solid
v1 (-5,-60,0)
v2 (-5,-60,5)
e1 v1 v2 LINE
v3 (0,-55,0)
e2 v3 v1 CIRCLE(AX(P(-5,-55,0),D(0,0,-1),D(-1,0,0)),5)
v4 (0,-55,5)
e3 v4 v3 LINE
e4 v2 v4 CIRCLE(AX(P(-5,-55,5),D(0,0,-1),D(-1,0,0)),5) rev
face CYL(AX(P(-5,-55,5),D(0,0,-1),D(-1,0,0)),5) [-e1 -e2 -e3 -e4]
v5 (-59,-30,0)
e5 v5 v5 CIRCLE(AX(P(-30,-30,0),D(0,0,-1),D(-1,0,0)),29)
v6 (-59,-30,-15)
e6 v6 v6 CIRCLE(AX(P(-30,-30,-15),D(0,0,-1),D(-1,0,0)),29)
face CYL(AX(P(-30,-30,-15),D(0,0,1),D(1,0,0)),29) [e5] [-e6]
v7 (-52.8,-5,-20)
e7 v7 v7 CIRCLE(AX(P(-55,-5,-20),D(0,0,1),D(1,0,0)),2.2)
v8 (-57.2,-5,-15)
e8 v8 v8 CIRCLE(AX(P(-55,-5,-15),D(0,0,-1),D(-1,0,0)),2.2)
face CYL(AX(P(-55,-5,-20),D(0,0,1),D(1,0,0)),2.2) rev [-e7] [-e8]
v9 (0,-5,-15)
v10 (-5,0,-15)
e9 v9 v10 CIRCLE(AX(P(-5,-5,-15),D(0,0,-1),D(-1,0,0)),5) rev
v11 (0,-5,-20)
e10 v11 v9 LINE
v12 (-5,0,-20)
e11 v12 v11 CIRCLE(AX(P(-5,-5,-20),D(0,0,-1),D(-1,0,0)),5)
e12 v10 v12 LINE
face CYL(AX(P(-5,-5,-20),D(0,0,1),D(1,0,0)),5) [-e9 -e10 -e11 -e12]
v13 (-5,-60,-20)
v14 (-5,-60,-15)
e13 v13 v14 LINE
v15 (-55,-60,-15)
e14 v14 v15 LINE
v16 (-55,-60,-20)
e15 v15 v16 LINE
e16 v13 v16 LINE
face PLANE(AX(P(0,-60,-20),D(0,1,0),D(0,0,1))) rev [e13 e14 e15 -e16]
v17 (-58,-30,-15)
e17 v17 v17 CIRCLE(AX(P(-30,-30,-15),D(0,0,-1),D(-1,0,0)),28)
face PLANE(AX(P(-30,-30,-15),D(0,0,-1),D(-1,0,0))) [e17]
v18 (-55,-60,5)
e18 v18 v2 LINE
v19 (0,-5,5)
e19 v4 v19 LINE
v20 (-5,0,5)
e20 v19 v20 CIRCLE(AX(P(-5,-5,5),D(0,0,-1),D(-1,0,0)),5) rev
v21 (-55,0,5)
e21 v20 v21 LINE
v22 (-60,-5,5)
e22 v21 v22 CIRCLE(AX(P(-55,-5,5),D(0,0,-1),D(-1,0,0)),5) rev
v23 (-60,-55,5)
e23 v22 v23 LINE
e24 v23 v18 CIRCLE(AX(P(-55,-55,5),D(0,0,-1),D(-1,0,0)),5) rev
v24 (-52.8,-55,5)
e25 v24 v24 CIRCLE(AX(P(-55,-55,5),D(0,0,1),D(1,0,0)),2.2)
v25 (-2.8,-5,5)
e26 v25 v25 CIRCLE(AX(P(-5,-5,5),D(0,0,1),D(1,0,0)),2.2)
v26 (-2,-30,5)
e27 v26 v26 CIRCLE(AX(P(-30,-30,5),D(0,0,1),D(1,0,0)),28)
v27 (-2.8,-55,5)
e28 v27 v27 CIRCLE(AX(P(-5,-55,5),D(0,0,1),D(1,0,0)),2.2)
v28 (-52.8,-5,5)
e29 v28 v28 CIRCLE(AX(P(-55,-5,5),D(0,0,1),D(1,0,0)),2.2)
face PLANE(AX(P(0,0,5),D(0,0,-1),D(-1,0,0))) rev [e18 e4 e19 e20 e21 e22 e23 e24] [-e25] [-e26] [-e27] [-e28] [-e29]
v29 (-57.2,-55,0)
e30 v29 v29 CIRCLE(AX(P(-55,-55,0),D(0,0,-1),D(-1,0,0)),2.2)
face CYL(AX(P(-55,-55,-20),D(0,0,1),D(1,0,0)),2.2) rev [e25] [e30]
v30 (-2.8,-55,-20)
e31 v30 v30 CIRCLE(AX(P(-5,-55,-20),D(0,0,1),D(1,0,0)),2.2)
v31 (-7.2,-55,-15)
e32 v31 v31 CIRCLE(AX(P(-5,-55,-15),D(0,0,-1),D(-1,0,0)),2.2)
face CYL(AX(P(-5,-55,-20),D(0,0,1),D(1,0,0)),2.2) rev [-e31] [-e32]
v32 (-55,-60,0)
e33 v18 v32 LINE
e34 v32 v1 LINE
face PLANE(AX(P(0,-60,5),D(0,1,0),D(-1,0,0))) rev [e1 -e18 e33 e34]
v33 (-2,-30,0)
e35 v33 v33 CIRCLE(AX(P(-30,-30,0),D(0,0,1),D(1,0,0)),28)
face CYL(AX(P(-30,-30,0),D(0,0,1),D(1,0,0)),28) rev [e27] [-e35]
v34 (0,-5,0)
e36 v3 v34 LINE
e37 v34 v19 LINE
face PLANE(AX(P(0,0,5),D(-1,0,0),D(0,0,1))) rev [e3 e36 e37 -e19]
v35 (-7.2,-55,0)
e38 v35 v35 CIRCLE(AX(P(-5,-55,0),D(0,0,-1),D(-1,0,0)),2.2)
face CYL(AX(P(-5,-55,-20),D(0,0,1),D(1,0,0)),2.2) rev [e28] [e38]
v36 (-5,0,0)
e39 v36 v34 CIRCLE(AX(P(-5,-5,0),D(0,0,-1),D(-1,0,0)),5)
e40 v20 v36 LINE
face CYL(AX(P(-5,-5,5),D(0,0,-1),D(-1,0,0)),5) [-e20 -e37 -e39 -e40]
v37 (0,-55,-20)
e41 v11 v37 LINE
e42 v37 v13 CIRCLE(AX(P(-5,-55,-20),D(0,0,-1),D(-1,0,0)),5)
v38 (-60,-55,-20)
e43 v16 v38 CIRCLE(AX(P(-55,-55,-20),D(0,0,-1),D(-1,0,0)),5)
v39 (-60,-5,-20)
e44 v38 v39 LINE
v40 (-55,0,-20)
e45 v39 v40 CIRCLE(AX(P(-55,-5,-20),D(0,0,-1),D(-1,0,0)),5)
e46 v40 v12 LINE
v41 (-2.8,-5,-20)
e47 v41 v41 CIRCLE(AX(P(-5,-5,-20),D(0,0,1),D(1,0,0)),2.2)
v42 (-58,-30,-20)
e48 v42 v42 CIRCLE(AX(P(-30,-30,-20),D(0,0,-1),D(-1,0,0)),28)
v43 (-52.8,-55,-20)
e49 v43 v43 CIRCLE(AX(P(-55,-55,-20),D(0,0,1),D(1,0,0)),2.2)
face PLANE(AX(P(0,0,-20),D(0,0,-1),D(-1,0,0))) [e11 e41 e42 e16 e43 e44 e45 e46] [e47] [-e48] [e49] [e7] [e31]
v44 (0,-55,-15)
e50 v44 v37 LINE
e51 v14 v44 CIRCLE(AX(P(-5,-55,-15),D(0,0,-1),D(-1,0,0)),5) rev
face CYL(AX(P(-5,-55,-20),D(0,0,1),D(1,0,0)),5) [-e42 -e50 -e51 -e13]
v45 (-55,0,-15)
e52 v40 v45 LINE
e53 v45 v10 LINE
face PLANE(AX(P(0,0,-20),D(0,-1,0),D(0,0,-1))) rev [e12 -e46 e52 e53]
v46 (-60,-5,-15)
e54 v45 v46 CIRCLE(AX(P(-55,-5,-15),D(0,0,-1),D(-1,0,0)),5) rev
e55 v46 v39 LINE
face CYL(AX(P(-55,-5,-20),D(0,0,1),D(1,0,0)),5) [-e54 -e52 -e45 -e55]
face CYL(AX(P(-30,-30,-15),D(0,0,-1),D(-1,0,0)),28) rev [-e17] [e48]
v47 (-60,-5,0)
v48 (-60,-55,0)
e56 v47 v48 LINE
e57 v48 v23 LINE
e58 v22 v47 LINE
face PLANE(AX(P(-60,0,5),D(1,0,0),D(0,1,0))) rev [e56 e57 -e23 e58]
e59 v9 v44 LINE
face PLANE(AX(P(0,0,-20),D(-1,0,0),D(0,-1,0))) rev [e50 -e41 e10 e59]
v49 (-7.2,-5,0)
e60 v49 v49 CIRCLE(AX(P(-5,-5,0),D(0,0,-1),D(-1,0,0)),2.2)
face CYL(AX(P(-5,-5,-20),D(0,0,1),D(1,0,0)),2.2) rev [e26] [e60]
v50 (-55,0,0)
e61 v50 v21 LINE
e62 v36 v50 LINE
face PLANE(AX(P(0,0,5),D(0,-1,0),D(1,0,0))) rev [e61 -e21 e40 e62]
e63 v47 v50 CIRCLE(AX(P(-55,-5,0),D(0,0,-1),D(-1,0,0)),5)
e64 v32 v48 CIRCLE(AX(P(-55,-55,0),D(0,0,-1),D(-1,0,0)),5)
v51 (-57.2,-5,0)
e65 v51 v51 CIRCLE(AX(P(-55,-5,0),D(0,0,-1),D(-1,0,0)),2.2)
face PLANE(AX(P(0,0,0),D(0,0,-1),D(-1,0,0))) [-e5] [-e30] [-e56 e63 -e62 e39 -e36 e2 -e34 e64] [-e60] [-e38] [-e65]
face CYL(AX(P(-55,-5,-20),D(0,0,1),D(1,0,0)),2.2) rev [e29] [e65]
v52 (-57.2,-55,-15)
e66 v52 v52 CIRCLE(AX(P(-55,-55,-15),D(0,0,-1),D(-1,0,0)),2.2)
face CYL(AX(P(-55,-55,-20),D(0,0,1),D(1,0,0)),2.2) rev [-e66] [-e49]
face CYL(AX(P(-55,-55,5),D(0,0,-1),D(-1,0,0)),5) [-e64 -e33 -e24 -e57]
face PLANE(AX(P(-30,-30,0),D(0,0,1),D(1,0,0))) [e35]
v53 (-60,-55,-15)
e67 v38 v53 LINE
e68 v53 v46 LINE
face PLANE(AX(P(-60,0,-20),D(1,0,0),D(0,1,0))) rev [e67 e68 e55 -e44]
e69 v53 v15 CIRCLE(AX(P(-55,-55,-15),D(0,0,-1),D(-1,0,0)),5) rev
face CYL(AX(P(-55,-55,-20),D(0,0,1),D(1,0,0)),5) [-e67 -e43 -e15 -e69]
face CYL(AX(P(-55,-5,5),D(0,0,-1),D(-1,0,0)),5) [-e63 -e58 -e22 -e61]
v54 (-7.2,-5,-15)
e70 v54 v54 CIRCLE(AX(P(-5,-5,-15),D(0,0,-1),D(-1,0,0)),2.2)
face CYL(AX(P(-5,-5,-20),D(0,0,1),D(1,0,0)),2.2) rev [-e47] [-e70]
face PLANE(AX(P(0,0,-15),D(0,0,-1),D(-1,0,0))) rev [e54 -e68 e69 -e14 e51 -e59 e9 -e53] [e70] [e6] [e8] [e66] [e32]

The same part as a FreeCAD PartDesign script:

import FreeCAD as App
import Part
import Sketcher

V = App.Vector


def edges_at(feature, points):
    """Names of the edges that pass closest to the given points."""
    edges = feature.Shape.Edges
    near = lambda p: min(range(len(edges)), key=lambda i: edges[i].distToShape(Part.Vertex(*p))[0])
    return sorted({f"Edge{near(p) + 1}" for p in points})


def add_polygon(sketch, points):
    """Adds a closed chain of lines whose ends are joined by coincident constraints."""
    first, n = sketch.GeometryCount, len(points)
    for a, b in zip(points, points[1:] + points[:1]):
        sketch.addGeometry(Part.LineSegment(App.Vector(*a, 0), App.Vector(*b, 0)), False)
    for i in range(n):
        sketch.addConstraint(Sketcher.Constraint("Coincident", first + i, 2, first + (i + 1) % n, 1))

doc = App.newDocument("Part")
body = doc.addObject("PartDesign::Body", "Body")

sketch1 = body.newObject("Sketcher::SketchObject", "Sketch")
sketch1.AttachmentSupport = (doc.getObject("XY_Plane"), [""])
sketch1.MapMode = "FlatFace"
add_polygon(sketch1, [(-60, 0), (-60, -60), (0, -60), (0, 0)])
sketch1.addConstraint([
    Sketcher.Constraint("Vertical", 0),
    Sketcher.Constraint("Horizontal", 1),
    Sketcher.Constraint("Vertical", 2),
    Sketcher.Constraint("Horizontal", 3),
    Sketcher.Constraint("Coincident", 2, 2, -1, 1),
    Sketcher.Constraint("Equal", 3, 0),
    Sketcher.Constraint("DistanceX", 1, 1, 1, 2, 60.0),
])
pad1 = body.newObject("PartDesign::Pad", "Pad")
pad1.Profile = sketch1
pad1.Length = 5

sketch2 = body.newObject("Sketcher::SketchObject", "Sketch001")
sketch2.AttachmentSupport = (doc.getObject("XY_Plane"), [""])
sketch2.MapMode = "FlatFace"
sketch2.addGeometry(Part.Circle(V(-30, -30, 0), V(0, 0, 1), 29), False)
sketch2.addConstraint([
    Sketcher.Constraint("Diameter", 0, 58.0),
    Sketcher.Constraint("DistanceX", 0, 3, -1, 1, 30.0),
    Sketcher.Constraint("DistanceY", 0, 3, -1, 1, 30.0),
])
pad2 = body.newObject("PartDesign::Pad", "Pad001")
pad2.Profile = sketch2
pad2.Length = 15
pad2.Reversed = True

sketch3 = body.newObject("Sketcher::SketchObject", "Sketch002")
sketch3.AttachmentSupport = (doc.getObject("XY_Plane"), [""])
sketch3.MapMode = "FlatFace"
sketch3.AttachmentOffset = App.Placement(V(0, 0, -15), App.Rotation())
add_polygon(sketch3, [(0, 0), (0, -60), (-60, -60), (-60, 0)])
sketch3.addConstraint([
    Sketcher.Constraint("Vertical", 0),
    Sketcher.Constraint("Horizontal", 1),
    Sketcher.Constraint("Vertical", 2),
    Sketcher.Constraint("Horizontal", 3),
    Sketcher.Constraint("Coincident", 3, 2, -1, 1),
    Sketcher.Constraint("Equal", 3, 0),
    Sketcher.Constraint("DistanceX", 1, 2, 1, 1, 60.0),
])
pad3 = body.newObject("PartDesign::Pad", "Pad002")
pad3.Profile = sketch3
pad3.Length = 5
pad3.Reversed = True
doc.recompute()

fillet = body.newObject("PartDesign::Fillet", "Fillet")
fillet.Base = (pad3, edges_at(pad3, [
    (0, 0, -17.5),
    (0, -60, -17.5),
    (-60, -60, -17.5),
    (-60, 0, -17.5),
    (0, -60, 2.5),
    (-60, -60, 2.5),
    (-60, 0, 2.5),
    (0, 0, 2.5),
]))
fillet.Radius = 5

sketch4 = body.newObject("Sketcher::SketchObject", "Sketch003")
sketch4.AttachmentSupport = (doc.getObject("XY_Plane"), [""])
sketch4.MapMode = "FlatFace"
sketch4.AttachmentOffset = App.Placement(V(0, 0, 5), App.Rotation())
sketch4.addGeometry([
    Part.Circle(V(-55, -5, 0), V(0, 0, 1), 2.2),
    Part.Circle(V(-5, -5, 0), V(0, 0, 1), 2.2),
    Part.Circle(V(-5, -55, 0), V(0, 0, 1), 2.2),
    Part.Circle(V(-55, -55, 0), V(0, 0, 1), 2.2),
], False)
sketch4.addConstraint([
    Sketcher.Constraint("Equal", 0, 1),
    Sketcher.Constraint("Equal", 1, 2),
    Sketcher.Constraint("Equal", 2, 3),
    Sketcher.Constraint("Horizontal", 0, 3, 1, 3),
    Sketcher.Constraint("Horizontal", 2, 3, 3, 3),
    Sketcher.Constraint("Vertical", 1, 3, 2, 3),
    Sketcher.Constraint("Vertical", 0, 3, 3, 3),
    Sketcher.Constraint("Diameter", 0, 4.4),
    Sketcher.Constraint("DistanceX", 0, 3, -1, 1, 55.0),
    Sketcher.Constraint("DistanceY", 0, 3, -1, 1, 5.0),
    Sketcher.Constraint("DistanceX", 1, 3, -1, 1, 5.0),
    Sketcher.Constraint("DistanceY", 2, 3, -1, 1, 55.0),
])
pocket1 = body.newObject("PartDesign::Pocket", "Pocket")
pocket1.Profile = sketch4
pocket1.Type = "ThroughAll"

sketch5 = body.newObject("Sketcher::SketchObject", "Sketch004")
sketch5.AttachmentSupport = (doc.getObject("XY_Plane"), [""])
sketch5.MapMode = "FlatFace"
sketch5.AttachmentOffset = App.Placement(V(0, 0, -20), App.Rotation())
sketch5.addGeometry(Part.Circle(V(-30, -30, 0), V(0, 0, 1), 28), False)
sketch5.addConstraint([
    Sketcher.Constraint("Diameter", 0, 56.0),
    Sketcher.Constraint("DistanceX", 0, 3, -1, 1, 30.0),
    Sketcher.Constraint("DistanceY", 0, 3, -1, 1, 30.0),
])
pocket2 = body.newObject("PartDesign::Pocket", "Pocket001")
pocket2.Profile = sketch5
pocket2.Length = 5
pocket2.Reversed = True

sketch6 = body.newObject("Sketcher::SketchObject", "Sketch005")
sketch6.AttachmentSupport = (doc.getObject("XY_Plane"), [""])
sketch6.MapMode = "FlatFace"
sketch6.addGeometry(Part.Circle(V(-30, -30, 0), V(0, 0, 1), 28), False)
sketch6.addConstraint([
    Sketcher.Constraint("Diameter", 0, 56.0),
    Sketcher.Constraint("DistanceX", 0, 3, -1, 1, 30.0),
    Sketcher.Constraint("DistanceY", 0, 3, -1, 1, 30.0),
])
pocket3 = body.newObject("PartDesign::Pocket", "Pocket002")
pocket3.Profile = sketch6
pocket3.Length = 5
pocket3.Reversed = True

doc.recompute()
